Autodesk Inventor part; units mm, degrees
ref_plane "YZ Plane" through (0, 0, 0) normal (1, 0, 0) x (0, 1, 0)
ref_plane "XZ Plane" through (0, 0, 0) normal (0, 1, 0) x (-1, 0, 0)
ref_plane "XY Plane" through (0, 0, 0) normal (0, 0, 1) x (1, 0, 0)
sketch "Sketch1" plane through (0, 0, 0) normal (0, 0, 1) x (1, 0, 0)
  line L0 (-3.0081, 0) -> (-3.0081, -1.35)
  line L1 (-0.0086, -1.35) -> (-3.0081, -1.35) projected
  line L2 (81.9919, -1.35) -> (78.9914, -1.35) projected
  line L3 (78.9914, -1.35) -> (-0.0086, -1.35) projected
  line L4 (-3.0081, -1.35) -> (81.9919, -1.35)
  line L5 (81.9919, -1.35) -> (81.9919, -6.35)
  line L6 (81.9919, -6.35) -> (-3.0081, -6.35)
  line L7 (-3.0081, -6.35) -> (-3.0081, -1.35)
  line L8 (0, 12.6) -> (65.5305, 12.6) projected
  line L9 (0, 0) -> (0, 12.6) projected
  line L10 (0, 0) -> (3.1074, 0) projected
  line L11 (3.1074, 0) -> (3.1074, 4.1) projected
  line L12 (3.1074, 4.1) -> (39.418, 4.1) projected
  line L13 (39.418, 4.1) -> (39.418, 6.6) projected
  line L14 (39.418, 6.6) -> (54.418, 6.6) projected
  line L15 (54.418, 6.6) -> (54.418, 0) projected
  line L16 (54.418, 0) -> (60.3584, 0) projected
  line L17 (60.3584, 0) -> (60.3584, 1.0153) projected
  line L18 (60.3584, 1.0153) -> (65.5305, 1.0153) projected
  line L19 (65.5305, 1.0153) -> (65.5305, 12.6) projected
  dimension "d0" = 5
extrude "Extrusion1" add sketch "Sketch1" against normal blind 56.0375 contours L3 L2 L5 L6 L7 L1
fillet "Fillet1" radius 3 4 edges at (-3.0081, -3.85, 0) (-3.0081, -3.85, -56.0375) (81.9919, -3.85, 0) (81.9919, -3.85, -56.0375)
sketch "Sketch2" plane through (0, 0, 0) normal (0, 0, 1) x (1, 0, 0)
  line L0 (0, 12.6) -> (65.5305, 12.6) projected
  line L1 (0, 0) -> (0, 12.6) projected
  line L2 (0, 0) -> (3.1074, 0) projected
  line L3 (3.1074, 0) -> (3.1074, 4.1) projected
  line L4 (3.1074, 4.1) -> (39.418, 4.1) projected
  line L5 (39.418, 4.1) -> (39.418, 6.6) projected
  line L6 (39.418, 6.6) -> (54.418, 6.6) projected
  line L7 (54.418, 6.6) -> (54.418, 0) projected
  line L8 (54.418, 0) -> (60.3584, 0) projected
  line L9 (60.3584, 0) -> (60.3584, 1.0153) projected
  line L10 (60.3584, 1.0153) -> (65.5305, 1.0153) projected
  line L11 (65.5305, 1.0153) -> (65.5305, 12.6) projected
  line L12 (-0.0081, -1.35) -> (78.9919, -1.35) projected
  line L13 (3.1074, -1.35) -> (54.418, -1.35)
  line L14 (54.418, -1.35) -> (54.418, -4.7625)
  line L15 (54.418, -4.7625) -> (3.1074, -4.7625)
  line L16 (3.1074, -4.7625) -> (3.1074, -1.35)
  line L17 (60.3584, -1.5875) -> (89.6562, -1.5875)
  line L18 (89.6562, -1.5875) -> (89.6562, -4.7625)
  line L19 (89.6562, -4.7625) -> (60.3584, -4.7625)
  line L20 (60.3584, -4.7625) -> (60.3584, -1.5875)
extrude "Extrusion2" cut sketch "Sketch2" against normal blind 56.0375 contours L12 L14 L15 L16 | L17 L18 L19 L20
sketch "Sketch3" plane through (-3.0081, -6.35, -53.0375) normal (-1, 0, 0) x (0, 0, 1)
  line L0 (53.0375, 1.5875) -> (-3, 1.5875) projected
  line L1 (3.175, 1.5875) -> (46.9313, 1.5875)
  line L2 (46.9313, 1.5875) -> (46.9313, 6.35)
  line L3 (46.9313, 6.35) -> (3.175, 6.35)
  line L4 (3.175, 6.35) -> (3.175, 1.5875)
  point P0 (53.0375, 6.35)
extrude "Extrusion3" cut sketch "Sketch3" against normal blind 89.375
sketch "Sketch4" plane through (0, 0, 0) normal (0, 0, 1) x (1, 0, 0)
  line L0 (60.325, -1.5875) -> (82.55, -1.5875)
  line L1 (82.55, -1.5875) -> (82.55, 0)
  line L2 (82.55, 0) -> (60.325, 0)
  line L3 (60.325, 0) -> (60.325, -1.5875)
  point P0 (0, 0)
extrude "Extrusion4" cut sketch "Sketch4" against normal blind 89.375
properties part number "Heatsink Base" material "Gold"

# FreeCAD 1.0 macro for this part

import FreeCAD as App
import Part
import Sketcher

V = App.Vector
Q = App.Units.Quantity


def edges_at(feature, points):
    """Names of the edges that pass closest to the given points."""
    edges = feature.Shape.Edges
    near = lambda p: min(range(len(edges)), key=lambda i: edges[i].distToShape(Part.Vertex(*p))[0])
    return sorted({f"Edge{near(p) + 1}" for p in points})

doc = App.newDocument("Part")
params = doc.addObject("Spreadsheet::Sheet", "Params")
for row, (alias, value) in enumerate([
    ("pad1_length", "2.2062008 in"),
    ("fillet_radius", "0.1181102 in"),
    ("sketch2_height", "0.125 in"),
    ("pocket1_length", "2.2062008 in"),
    ("sketch3_width", "0.1875 in"),
    ("pocket2_length", "3.5187008 in"),
    ("sketch4_width", "0.875 in"),
    ("sketch4_height", "0.0625 in"),
    ("pocket3_length", "3.5187008 in"),
], start=1):
    params.set(f"A{row}", alias)
    params.set(f"B{row}", "=" + value)
    params.setAlias(f"B{row}", alias)

body = doc.addObject("PartDesign::Body", "Body")

# Sketch on XY plane
sketch1 = doc.addObject("Sketcher::SketchObject", "Sketch")
body.addObject(sketch1)
sketch1.AttachmentSupport = (doc.XY_Plane, [""])
sketch1.MapMode = "FlatFace"
sketch1.addGeometry([
    Part.LineSegment(V(82, -1, 0), V(-3, -1, 0)),
    Part.LineSegment(V(-3, -1, 0), V(-3, -6, 0)),
    Part.LineSegment(V(-3, -6, 0), V(82, -6, 0)),
    Part.LineSegment(V(82, -6, 0), V(82, -1, 0)),
], False)
sketch1.addConstraint([
    Sketcher.Constraint("Coincident", 0, 2, 1, 1),
    Sketcher.Constraint("Coincident", 1, 2, 2, 1),
    Sketcher.Constraint("Coincident", 2, 2, 3, 1),
    Sketcher.Constraint("Coincident", 3, 2, 0, 1),
    Sketcher.Constraint("Horizontal", 0),
    Sketcher.Constraint("Vertical", 1),
    Sketcher.Constraint("Horizontal", 2),
    Sketcher.Constraint("Vertical", 3),
    Sketcher.Constraint("DistanceY", 1, 2, 1, 1, Q("5 mm")),
    Sketcher.Constraint("DistanceY", 1, 2, -1, 1, Q("0.25 in")),
    Sketcher.Constraint("DistanceX", 0, 2, 0, 1, Q("85 mm")),
    Sketcher.Constraint("DistanceX", 0, 2, -1, 1, Q("3.008 mm")),
])
pad1 = doc.addObject("PartDesign::Pad", "Pad")
body.addObject(pad1)
pad1.Profile = sketch1
pad1.setExpression("Length", "Params.pad1_length")
pad1.Reversed = True
doc.recompute()

fillet = doc.addObject("PartDesign::Fillet", "Fillet")
body.addObject(fillet)
fillet.Base = (pad1, edges_at(pad1, [
    (-3.008, -3.85, 0),
    (-3.008, -3.85, -56.038),
    (81.992, -3.85, 0),
    (81.992, -3.85, -56.038),
]))
fillet.setExpression("Radius", "Params.fillet_radius")

# Sketch on XY plane
sketch2 = doc.addObject("Sketcher::SketchObject", "Sketch001")
body.addObject(sketch2)
sketch2.AttachmentSupport = (doc.XY_Plane, [""])
sketch2.MapMode = "FlatFace"
sketch2.addGeometry([
    Part.LineSegment(V(54.4, -1.4, 0), V(3.1, -1.4, 0)),  # 0
    Part.LineSegment(V(3.1, -1.4, 0), V(3.1, -4.8, 0)),  # 1
    Part.LineSegment(V(3.1, -4.8, 0), V(54.4, -4.8, 0)),  # 2
    Part.LineSegment(V(54.4, -4.8, 0), V(54.4, -1.4, 0)),  # 3
    Part.LineSegment(V(89.7, -1.6, 0), V(60.4, -1.6, 0)),  # 4
    Part.LineSegment(V(60.4, -1.6, 0), V(60.4, -4.8, 0)),  # 5
    Part.LineSegment(V(60.4, -4.8, 0), V(89.7, -4.8, 0)),  # 6
    Part.LineSegment(V(89.7, -4.8, 0), V(89.7, -1.6, 0)),  # 7
], False)
sketch2.addConstraint([
    Sketcher.Constraint("Coincident", 0, 2, 1, 1),
    Sketcher.Constraint("Coincident", 1, 2, 2, 1),
    Sketcher.Constraint("Coincident", 2, 2, 3, 1),
    Sketcher.Constraint("Coincident", 3, 2, 0, 1),
    Sketcher.Constraint("Coincident", 4, 2, 5, 1),
    Sketcher.Constraint("Coincident", 5, 2, 6, 1),
    Sketcher.Constraint("Coincident", 6, 2, 7, 1),
    Sketcher.Constraint("Coincident", 7, 2, 4, 1),
    Sketcher.Constraint("Horizontal", 0),
    Sketcher.Constraint("Vertical", 1),
    Sketcher.Constraint("Horizontal", 2),
    Sketcher.Constraint("Vertical", 3),
    Sketcher.Constraint("Horizontal", 4),
    Sketcher.Constraint("Vertical", 5),
    Sketcher.Constraint("Horizontal", 6),
    Sketcher.Constraint("Vertical", 7),
    Sketcher.Constraint("Horizontal", 2, 2, 5, 2),
    Sketcher.Constraint("DistanceY", 5, 2, 5, 1, Q("0.125 in")),
    Sketcher.Constraint("DistanceX", 0, 2, 0, 1, Q("2.0201 in")),
    Sketcher.Constraint("DistanceY", 1, 2, -1, 1, Q("0.1875 in")),
    Sketcher.Constraint("DistanceX", 4, 2, 4, 1, Q("29.2978 mm")),
    Sketcher.Constraint("DistanceY", 1, 2, 1, 1, Q("3.4125 mm")),
    Sketcher.Constraint("DistanceX", -1, 1, 0, 2, Q("3.1074 mm")),
    Sketcher.Constraint("DistanceX", -1, 1, 4, 2, Q("60.3584 mm")),
])
sketch2.setExpression("Constraints[17]", "Params.sketch2_height")
pocket1 = doc.addObject("PartDesign::Pocket", "Pocket")
body.addObject(pocket1)
pocket1.Profile = sketch2
pocket1.setExpression("Length", "Params.pocket1_length")

# Sketch on YZ plane
sketch3 = doc.addObject("Sketcher::SketchObject", "Sketch002")
body.addObject(sketch3)
sketch3.AttachmentSupport = (doc.YZ_Plane, [""])
sketch3.MapMode = "FlatFace"
sketch3.AttachmentOffset = App.Placement(V(0, 0, -3.0081), App.Rotation())
sketch3.addGeometry([
    Part.LineSegment(V(-4.8, -49.9, 0), V(-4.8, -6.1, 0)),
    Part.LineSegment(V(-4.8, -6.1, 0), V(0, -6.1, 0)),
    Part.LineSegment(V(0, -6.1, 0), V(0, -49.9, 0)),
    Part.LineSegment(V(0, -49.9, 0), V(-4.8, -49.9, 0)),
], False)
sketch3.addConstraint([
    Sketcher.Constraint("Coincident", 0, 2, 1, 1),
    Sketcher.Constraint("Coincident", 1, 2, 2, 1),
    Sketcher.Constraint("Coincident", 2, 2, 3, 1),
    Sketcher.Constraint("Coincident", 3, 2, 0, 1),
    Sketcher.Constraint("Vertical", 0),
    Sketcher.Constraint("Horizontal", 1),
    Sketcher.Constraint("Vertical", 2),
    Sketcher.Constraint("Horizontal", 3),
    Sketcher.Constraint("PointOnObject", 1, 2, -2),
    Sketcher.Constraint("DistanceX", 1, 1, 1, 2, Q("0.1875 in")),
    Sketcher.Constraint("DistanceY", 0, 1, 0, 2, Q("1.7227 in")),
    Sketcher.Constraint("DistanceY", 0, 2, -1, 1, Q("0.2404 in")),
])
sketch3.setExpression("Constraints[9]", "Params.sketch3_width")
pocket2 = doc.addObject("PartDesign::Pocket", "Pocket001")
body.addObject(pocket2)
pocket2.Profile = sketch3
pocket2.setExpression("Length", "Params.pocket2_length")
pocket2.Reversed = True

# Sketch on XY plane
sketch4 = doc.addObject("Sketcher::SketchObject", "Sketch003")
body.addObject(sketch4)
sketch4.AttachmentSupport = (doc.XY_Plane, [""])
sketch4.MapMode = "FlatFace"
sketch4.addGeometry([
    Part.LineSegment(V(60.3, 0, 0), V(60.3, -1.6, 0)),
    Part.LineSegment(V(60.3, -1.6, 0), V(82.5, -1.6, 0)),
    Part.LineSegment(V(82.5, -1.6, 0), V(82.5, 0, 0)),
    Part.LineSegment(V(82.5, 0, 0), V(60.3, 0, 0)),
], False)
sketch4.addConstraint([
    Sketcher.Constraint("Coincident", 0, 2, 1, 1),
    Sketcher.Constraint("Coincident", 1, 2, 2, 1),
    Sketcher.Constraint("Coincident", 2, 2, 3, 1),
    Sketcher.Constraint("Coincident", 3, 2, 0, 1),
    Sketcher.Constraint("Vertical", 0),
    Sketcher.Constraint("Horizontal", 1),
    Sketcher.Constraint("Vertical", 2),
    Sketcher.Constraint("Horizontal", 3),
    Sketcher.Constraint("PointOnObject", 2, 2, -1),
    Sketcher.Constraint("DistanceX", 1, 1, 1, 2, Q("0.875 in")),
    Sketcher.Constraint("DistanceY", 0, 2, 0, 1, Q("0.0625 in")),
    Sketcher.Constraint("DistanceX", -1, 1, 1, 2, Q("3.25 in")),
])
sketch4.setExpression("Constraints[9]", "Params.sketch4_width")
sketch4.setExpression("Constraints[10]", "Params.sketch4_height")
pocket3 = doc.addObject("PartDesign::Pocket", "Pocket002")
body.addObject(pocket3)
pocket3.Profile = sketch4
pocket3.setExpression("Length", "Params.pocket3_length")

doc.recompute()
